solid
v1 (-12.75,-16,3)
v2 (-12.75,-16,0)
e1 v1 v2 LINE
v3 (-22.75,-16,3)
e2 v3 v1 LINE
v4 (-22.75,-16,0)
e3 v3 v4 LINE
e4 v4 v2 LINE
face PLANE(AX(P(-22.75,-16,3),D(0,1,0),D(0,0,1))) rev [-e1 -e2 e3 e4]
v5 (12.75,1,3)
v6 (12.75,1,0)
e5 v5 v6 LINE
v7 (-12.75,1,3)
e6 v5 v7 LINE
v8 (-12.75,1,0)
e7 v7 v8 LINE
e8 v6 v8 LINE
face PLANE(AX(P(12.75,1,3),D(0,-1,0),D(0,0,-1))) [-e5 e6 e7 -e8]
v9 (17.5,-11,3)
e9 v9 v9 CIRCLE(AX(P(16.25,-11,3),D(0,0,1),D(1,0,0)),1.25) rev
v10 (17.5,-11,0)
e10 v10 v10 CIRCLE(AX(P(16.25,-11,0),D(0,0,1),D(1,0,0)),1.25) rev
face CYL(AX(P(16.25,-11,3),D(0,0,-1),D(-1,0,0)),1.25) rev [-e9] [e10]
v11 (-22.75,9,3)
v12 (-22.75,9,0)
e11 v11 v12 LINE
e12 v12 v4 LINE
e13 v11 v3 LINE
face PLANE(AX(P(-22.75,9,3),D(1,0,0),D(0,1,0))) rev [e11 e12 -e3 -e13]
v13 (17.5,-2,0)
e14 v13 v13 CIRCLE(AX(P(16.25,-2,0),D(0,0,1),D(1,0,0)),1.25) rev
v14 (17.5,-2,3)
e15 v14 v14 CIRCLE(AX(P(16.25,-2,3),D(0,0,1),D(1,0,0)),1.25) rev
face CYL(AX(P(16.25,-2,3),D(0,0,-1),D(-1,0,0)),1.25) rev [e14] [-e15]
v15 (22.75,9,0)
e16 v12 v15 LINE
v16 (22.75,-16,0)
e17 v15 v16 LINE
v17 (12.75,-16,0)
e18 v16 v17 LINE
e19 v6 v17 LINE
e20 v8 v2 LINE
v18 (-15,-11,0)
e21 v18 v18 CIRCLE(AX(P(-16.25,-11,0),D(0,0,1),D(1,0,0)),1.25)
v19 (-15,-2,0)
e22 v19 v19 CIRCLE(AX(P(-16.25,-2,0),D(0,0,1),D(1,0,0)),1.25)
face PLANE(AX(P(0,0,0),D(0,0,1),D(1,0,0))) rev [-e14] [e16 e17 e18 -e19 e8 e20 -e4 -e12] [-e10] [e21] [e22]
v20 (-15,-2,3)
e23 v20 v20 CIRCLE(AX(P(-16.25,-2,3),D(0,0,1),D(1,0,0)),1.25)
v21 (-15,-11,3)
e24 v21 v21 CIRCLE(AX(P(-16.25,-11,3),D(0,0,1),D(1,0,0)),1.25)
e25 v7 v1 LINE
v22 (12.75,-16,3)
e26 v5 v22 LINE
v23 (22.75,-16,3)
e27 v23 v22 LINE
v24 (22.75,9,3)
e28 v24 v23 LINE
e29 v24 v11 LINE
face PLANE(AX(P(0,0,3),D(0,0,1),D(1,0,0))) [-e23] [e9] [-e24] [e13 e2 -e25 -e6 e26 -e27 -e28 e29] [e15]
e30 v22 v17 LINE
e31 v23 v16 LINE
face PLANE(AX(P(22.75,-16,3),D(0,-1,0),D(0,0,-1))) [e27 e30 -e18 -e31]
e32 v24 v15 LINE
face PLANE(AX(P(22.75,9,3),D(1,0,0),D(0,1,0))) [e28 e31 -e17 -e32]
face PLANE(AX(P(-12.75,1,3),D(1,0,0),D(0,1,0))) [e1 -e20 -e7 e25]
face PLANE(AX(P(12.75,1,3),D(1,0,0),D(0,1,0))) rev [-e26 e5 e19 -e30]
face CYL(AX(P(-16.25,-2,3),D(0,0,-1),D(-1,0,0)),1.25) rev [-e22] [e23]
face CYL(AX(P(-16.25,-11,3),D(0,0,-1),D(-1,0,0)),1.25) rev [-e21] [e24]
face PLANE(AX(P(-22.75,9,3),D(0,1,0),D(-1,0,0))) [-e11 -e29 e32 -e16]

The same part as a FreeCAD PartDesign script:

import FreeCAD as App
import Part
import Sketcher

doc = App.newDocument("Part")
params = doc.addObject("Spreadsheet::Sheet", "Params")
for row, (alias, value) in enumerate([
    ("sketch1_width", "10 mm"),
    ("sketch1_height", "25 mm"),
    ("sketch1_height2", "17 mm"),
    ("sketch1_width2", "45.5 mm"),
    ("pad1_length", "3 mm"),
    ("sketch2_diameter", "2.5 mm"),
    ("pocket1_length", "3 mm"),
], start=1):
    params.set(f"A{row}", alias)
    params.set(f"B{row}", "=" + value)
    params.setAlias(f"B{row}", alias)

body = doc.addObject("PartDesign::Body", "Body")

# Sketch on XY plane
sketch1 = body.newObject("Sketcher::SketchObject", "Sketch")
sketch1.AttachmentSupport = (doc.getObject("XY_Plane"), [""])
sketch1.MapMode = "FlatFace"
sketch1.addGeometry([
    Part.LineSegment(App.Vector(22.75, 9, 0), App.Vector(-22.75, 9, 0)),  # 0
    Part.LineSegment(App.Vector(-22.75, 9, 0), App.Vector(-22.75, -16, 0)),  # 1
    Part.LineSegment(App.Vector(-22.75, -16, 0), App.Vector(-12.75, -16, 0)),  # 2
    Part.LineSegment(App.Vector(-12.75, -16, 0), App.Vector(-12.75, 1, 0)),  # 3
    Part.LineSegment(App.Vector(-12.75, 1, 0), App.Vector(12.75, 1, 0)),  # 4
    Part.LineSegment(App.Vector(12.75, 1, 0), App.Vector(12.75, -16, 0)),  # 5
    Part.LineSegment(App.Vector(12.75, -16, 0), App.Vector(22.75, -16, 0)),  # 6
    Part.LineSegment(App.Vector(22.75, -16, 0), App.Vector(22.75, 9, 0)),  # 7
], False)
sketch1.addConstraint([
    Sketcher.Constraint("Coincident", 0, 2, 1, 1),
    Sketcher.Constraint("Coincident", 1, 2, 2, 1),
    Sketcher.Constraint("Coincident", 2, 2, 3, 1),
    Sketcher.Constraint("Coincident", 3, 2, 4, 1),
    Sketcher.Constraint("Coincident", 4, 2, 5, 1),
    Sketcher.Constraint("Coincident", 5, 2, 6, 1),
    Sketcher.Constraint("Coincident", 6, 2, 7, 1),
    Sketcher.Constraint("Coincident", 7, 2, 0, 1),
    Sketcher.Constraint("Horizontal", 0),
    Sketcher.Constraint("Vertical", 1),
    Sketcher.Constraint("Horizontal", 2),
    Sketcher.Constraint("Vertical", 3),
    Sketcher.Constraint("Horizontal", 4),
    Sketcher.Constraint("Vertical", 5),
    Sketcher.Constraint("Horizontal", 6),
    Sketcher.Constraint("Vertical", 7),
    Sketcher.Constraint("Symmetric", 2, 2, 5, 2, -2),
    Sketcher.Constraint("Equal", 2, 6),
    Sketcher.Constraint("DistanceX", 2, 1, 2, 2, 10.0),
    Sketcher.Constraint("DistanceY", 1, 2, 1, 1, 25.0),
    Sketcher.Constraint("DistanceY", 3, 1, 3, 2, 17.0),
    Sketcher.Constraint("DistanceX", 0, 2, 0, 1, 45.5),
    Sketcher.Constraint("DistanceY", -1, 1, 0, 2, 9.0),
])
sketch1.setExpression("Constraints[18]", "Params.sketch1_width")
sketch1.setExpression("Constraints[19]", "Params.sketch1_height")
sketch1.setExpression("Constraints[20]", "Params.sketch1_height2")
sketch1.setExpression("Constraints[21]", "Params.sketch1_width2")
pad1 = body.newObject("PartDesign::Pad", "Pad")
pad1.Profile = sketch1
pad1.setExpression("Length", "Params.pad1_length")

# Sketch on XY plane
sketch2 = body.newObject("Sketcher::SketchObject", "Sketch001")
sketch2.AttachmentSupport = (doc.getObject("XY_Plane"), [""])
sketch2.MapMode = "FlatFace"
sketch2.addGeometry([
    Part.Circle(App.Vector(-16.25, -11, 0), App.Vector(0, 0, 1), 1.25),
    Part.Circle(App.Vector(16.25, -2, 0), App.Vector(0, 0, 1), 1.25),
    Part.Circle(App.Vector(16.25, -11, 0), App.Vector(0, 0, 1), 1.25),
    Part.Circle(App.Vector(-16.25, -2, 0), App.Vector(0, 0, 1), 1.25),
], False)
sketch2.addConstraint([
    Sketcher.Constraint("Equal", 0, 1),
    Sketcher.Constraint("Equal", 1, 2),
    Sketcher.Constraint("Equal", 2, 3),
    Sketcher.Constraint("Symmetric", 0, 3, 2, 3, -2),
    Sketcher.Constraint("Symmetric", 1, 3, 3, 3, -2),
    Sketcher.Constraint("Vertical", 1, 3, 2, 3),
    Sketcher.Constraint("Diameter", 0, 2.5),
    Sketcher.Constraint("DistanceY", 0, 3, -1, 1, 11.0),
    Sketcher.Constraint("DistanceY", 1, 3, -1, 1, 2.0),
    Sketcher.Constraint("DistanceX", 0, 3, 1, 3, 32.5),
])
sketch2.setExpression("Constraints[6]", "Params.sketch2_diameter")
pocket1 = body.newObject("PartDesign::Pocket", "Pocket")
pocket1.Profile = sketch2
pocket1.setExpression("Length", "Params.pocket1_length")
pocket1.Reversed = True

doc.recompute()
